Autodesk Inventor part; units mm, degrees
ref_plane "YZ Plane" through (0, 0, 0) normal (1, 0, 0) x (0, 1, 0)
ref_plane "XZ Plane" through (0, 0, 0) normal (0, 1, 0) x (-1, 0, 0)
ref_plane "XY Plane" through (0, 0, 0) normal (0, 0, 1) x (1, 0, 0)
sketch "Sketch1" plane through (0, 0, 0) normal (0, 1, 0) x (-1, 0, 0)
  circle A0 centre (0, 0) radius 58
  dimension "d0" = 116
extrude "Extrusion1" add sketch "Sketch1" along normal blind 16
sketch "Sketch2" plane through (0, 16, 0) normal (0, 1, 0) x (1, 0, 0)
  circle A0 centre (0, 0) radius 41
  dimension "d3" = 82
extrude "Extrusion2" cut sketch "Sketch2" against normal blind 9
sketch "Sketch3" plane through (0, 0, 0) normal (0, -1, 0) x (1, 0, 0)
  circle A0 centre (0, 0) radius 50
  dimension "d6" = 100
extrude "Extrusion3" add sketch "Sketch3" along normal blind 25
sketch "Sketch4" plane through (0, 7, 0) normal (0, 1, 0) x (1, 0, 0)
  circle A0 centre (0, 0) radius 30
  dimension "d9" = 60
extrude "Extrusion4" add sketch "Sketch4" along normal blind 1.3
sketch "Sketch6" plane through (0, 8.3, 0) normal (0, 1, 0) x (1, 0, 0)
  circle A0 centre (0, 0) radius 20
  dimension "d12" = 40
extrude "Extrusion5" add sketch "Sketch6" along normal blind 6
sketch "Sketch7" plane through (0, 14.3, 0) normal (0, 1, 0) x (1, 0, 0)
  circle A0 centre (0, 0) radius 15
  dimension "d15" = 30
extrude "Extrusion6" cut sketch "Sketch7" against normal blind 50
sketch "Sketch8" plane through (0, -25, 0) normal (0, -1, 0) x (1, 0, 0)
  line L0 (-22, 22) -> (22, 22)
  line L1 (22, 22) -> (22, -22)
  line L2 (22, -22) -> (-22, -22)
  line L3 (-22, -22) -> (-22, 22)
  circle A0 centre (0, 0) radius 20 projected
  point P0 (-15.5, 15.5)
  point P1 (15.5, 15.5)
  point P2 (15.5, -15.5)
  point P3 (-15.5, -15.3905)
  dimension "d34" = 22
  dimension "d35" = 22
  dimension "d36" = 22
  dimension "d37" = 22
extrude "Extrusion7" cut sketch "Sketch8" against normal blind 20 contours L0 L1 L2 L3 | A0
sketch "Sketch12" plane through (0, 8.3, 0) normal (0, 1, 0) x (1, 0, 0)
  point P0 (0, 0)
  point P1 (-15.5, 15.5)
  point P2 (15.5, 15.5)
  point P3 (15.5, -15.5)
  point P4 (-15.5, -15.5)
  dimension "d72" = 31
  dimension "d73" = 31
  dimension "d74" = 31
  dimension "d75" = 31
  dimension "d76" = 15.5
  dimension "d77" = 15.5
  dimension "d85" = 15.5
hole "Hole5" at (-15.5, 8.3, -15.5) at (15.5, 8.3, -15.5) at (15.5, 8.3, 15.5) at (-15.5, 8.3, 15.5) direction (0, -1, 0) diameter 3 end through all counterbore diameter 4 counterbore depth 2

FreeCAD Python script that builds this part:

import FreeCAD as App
import Part
import Sketcher
from FreeCAD import Vector
Q = App.Units.Quantity

doc = App.newDocument("Part")
body = doc.addObject("PartDesign::Body", "Body")

# Sketch on XZ plane
sketch1 = doc.addObject("Sketcher::SketchObject", "Sketch")
body.addObject(sketch1)
sketch1.AttachmentSupport = (doc.XZ_Plane, [""])
sketch1.MapMode = "FlatFace"
sketch1.addGeometry(Part.Circle(Vector(0, 0, 0), Vector(0, 0, 1), 58), False)
sketch1.addConstraint(Sketcher.Constraint("Coincident", 0, 3, -1, 1))
sketch1.addConstraint(Sketcher.Constraint("Diameter", 0, Q("116 mm")))
pad1 = doc.addObject("PartDesign::Pad", "Pad")
body.addObject(pad1)
pad1.Profile = sketch1
pad1.Length = 16
pad1.Reversed = True

# Sketch on XZ plane
sketch2 = doc.addObject("Sketcher::SketchObject", "Sketch001")
body.addObject(sketch2)
sketch2.AttachmentSupport = (doc.XZ_Plane, [""])
sketch2.MapMode = "FlatFace"
sketch2.AttachmentOffset = App.Placement(Vector(0, 0, -16), App.Rotation())
sketch2.addGeometry(Part.Circle(Vector(0, 0, 0), Vector(0, 0, 1), 41), False)
sketch2.addConstraint(Sketcher.Constraint("Coincident", 0, 3, -1, 1))
sketch2.addConstraint(Sketcher.Constraint("Diameter", 0, Q("82 mm")))
pocket1 = doc.addObject("PartDesign::Pocket", "Pocket")
body.addObject(pocket1)
pocket1.Profile = sketch2
pocket1.Length = 9
pocket1.Reversed = True

# Sketch on XZ plane
sketch3 = doc.addObject("Sketcher::SketchObject", "Sketch002")
body.addObject(sketch3)
sketch3.AttachmentSupport = (doc.XZ_Plane, [""])
sketch3.MapMode = "FlatFace"
sketch3.addGeometry(Part.Circle(Vector(0, 0, 0), Vector(0, 0, 1), 50), False)
sketch3.addConstraint(Sketcher.Constraint("Coincident", 0, 3, -1, 1))
sketch3.addConstraint(Sketcher.Constraint("Diameter", 0, Q("100 mm")))
pad2 = doc.addObject("PartDesign::Pad", "Pad001")
body.addObject(pad2)
pad2.Profile = sketch3
pad2.Length = 25

# Sketch on XZ plane
sketch4 = doc.addObject("Sketcher::SketchObject", "Sketch003")
body.addObject(sketch4)
sketch4.AttachmentSupport = (doc.XZ_Plane, [""])
sketch4.MapMode = "FlatFace"
sketch4.AttachmentOffset = App.Placement(Vector(0, 0, -7), App.Rotation())
sketch4.addGeometry(Part.Circle(Vector(0, 0, 0), Vector(0, 0, 1), 30), False)
sketch4.addConstraint(Sketcher.Constraint("Coincident", 0, 3, -1, 1))
sketch4.addConstraint(Sketcher.Constraint("Diameter", 0, Q("60 mm")))
pad3 = doc.addObject("PartDesign::Pad", "Pad002")
body.addObject(pad3)
pad3.Profile = sketch4
pad3.Length = 1.3
pad3.Reversed = True

# Sketch on XZ plane
sketch5 = doc.addObject("Sketcher::SketchObject", "Sketch004")
body.addObject(sketch5)
sketch5.AttachmentSupport = (doc.XZ_Plane, [""])
sketch5.MapMode = "FlatFace"
sketch5.AttachmentOffset = App.Placement(Vector(0, 0, -8.3), App.Rotation())
sketch5.addGeometry(Part.Circle(Vector(0, 0, 0), Vector(0, 0, 1), 20), False)
sketch5.addConstraint(Sketcher.Constraint("Coincident", 0, 3, -1, 1))
sketch5.addConstraint(Sketcher.Constraint("Diameter", 0, Q("40 mm")))
pad4 = doc.addObject("PartDesign::Pad", "Pad003")
body.addObject(pad4)
pad4.Profile = sketch5
pad4.Length = 6
pad4.Reversed = True

# Sketch on XZ plane
sketch6 = doc.addObject("Sketcher::SketchObject", "Sketch005")
body.addObject(sketch6)
sketch6.AttachmentSupport = (doc.XZ_Plane, [""])
sketch6.MapMode = "FlatFace"
sketch6.AttachmentOffset = App.Placement(Vector(0, 0, -14.3), App.Rotation())
sketch6.addGeometry(Part.Circle(Vector(0, 0, 0), Vector(0, 0, 1), 15), False)
sketch6.addConstraint(Sketcher.Constraint("Coincident", 0, 3, -1, 1))
sketch6.addConstraint(Sketcher.Constraint("Diameter", 0, Q("30 mm")))
pocket2 = doc.addObject("PartDesign::Pocket", "Pocket001")
body.addObject(pocket2)
pocket2.Profile = sketch6
pocket2.Length = 50
pocket2.Reversed = True

# Sketch on XZ plane
sketch7 = doc.addObject("Sketcher::SketchObject", "Sketch006")
body.addObject(sketch7)
sketch7.AttachmentSupport = (doc.XZ_Plane, [""])
sketch7.MapMode = "FlatFace"
sketch7.AttachmentOffset = App.Placement(Vector(0, 0, 25), App.Rotation())
sketch7.addGeometry(Part.LineSegment(Vector(22, 22, 0), Vector(-22, 22, 0)), False)
sketch7.addGeometry(Part.LineSegment(Vector(-22, 22, 0), Vector(-22, -22, 0)), False)
sketch7.addGeometry(Part.LineSegment(Vector(-22, -22, 0), Vector(22, -22, 0)), False)
sketch7.addGeometry(Part.LineSegment(Vector(22, -22, 0), Vector(22, 22, 0)), False)
sketch7.addConstraint(Sketcher.Constraint("Coincident", 0, 2, 1, 1))
sketch7.addConstraint(Sketcher.Constraint("Coincident", 1, 2, 2, 1))
sketch7.addConstraint(Sketcher.Constraint("Coincident", 2, 2, 3, 1))
sketch7.addConstraint(Sketcher.Constraint("Coincident", 3, 2, 0, 1))
sketch7.addConstraint(Sketcher.Constraint("Horizontal", 0))
sketch7.addConstraint(Sketcher.Constraint("Vertical", 1))
sketch7.addConstraint(Sketcher.Constraint("Horizontal", 2))
sketch7.addConstraint(Sketcher.Constraint("Vertical", 3))
sketch7.addConstraint(Sketcher.Constraint("Symmetric", 0, 2, 2, 2, -1, 1))
sketch7.addConstraint(Sketcher.Constraint("Equal", 2, 1))
sketch7.addConstraint(Sketcher.Constraint("DistanceX", 0, 2, -1, 1, Q("22 mm")))
pocket3 = doc.addObject("PartDesign::Pocket", "Pocket002")
body.addObject(pocket3)
pocket3.Profile = sketch7
pocket3.Length = 20

# Sketch on XZ plane
sketch8 = doc.addObject("Sketcher::SketchObject", "Sketch007")
body.addObject(sketch8)
sketch8.AttachmentSupport = (doc.XZ_Plane, [""])
sketch8.MapMode = "FlatFace"
sketch8.AttachmentOffset = App.Placement(Vector(0, 0, -8.3), App.Rotation())
sketch8.addGeometry(Part.Circle(Vector(-15.5, -15.5, 0), Vector(0, 0, 1), 1.5), False)
sketch8.addGeometry(Part.Circle(Vector(15.5, -15.5, 0), Vector(0, 0, 1), 1.5), False)
sketch8.addGeometry(Part.Circle(Vector(15.5, 15.5, 0), Vector(0, 0, 1), 1.5), False)
sketch8.addGeometry(Part.Circle(Vector(-15.5, 15.5, 0), Vector(0, 0, 1), 1.5), False)
sketch8.addConstraint(Sketcher.Constraint("Equal", 0, 1))
sketch8.addConstraint(Sketcher.Constraint("Equal", 1, 2))
sketch8.addConstraint(Sketcher.Constraint("Equal", 2, 3))
sketch8.addConstraint(Sketcher.Constraint("Symmetric", 0, 3, 2, 3, -1, 1))
sketch8.addConstraint(Sketcher.Constraint("Symmetric", 1, 3, 3, 3, -1, 1))
sketch8.addConstraint(Sketcher.Constraint("Symmetric", 0, 3, 1, 3, -2))
sketch8.addConstraint(Sketcher.Constraint("Diameter", 0, Q("3 mm")))
sketch8.addConstraint(Sketcher.Constraint("DistanceX", 0, 3, 1, 3, Q("31 mm")))
sketch8.addConstraint(Sketcher.Constraint("DistanceY", 1, 3, 2, 3, Q("31 mm")))
doc.recompute()
hole = doc.addObject("PartDesign::Hole", "Hole")
body.addObject(hole)
hole.Profile = sketch8
hole.ThreadType = "None"
hole.Diameter = 3
hole.DepthType = "ThroughAll"
hole.HoleCutType = "Counterbore"
hole.HoleCutDiameter = 4
hole.HoleCutDepth = 2
hole.Reversed = True

doc.recompute()
